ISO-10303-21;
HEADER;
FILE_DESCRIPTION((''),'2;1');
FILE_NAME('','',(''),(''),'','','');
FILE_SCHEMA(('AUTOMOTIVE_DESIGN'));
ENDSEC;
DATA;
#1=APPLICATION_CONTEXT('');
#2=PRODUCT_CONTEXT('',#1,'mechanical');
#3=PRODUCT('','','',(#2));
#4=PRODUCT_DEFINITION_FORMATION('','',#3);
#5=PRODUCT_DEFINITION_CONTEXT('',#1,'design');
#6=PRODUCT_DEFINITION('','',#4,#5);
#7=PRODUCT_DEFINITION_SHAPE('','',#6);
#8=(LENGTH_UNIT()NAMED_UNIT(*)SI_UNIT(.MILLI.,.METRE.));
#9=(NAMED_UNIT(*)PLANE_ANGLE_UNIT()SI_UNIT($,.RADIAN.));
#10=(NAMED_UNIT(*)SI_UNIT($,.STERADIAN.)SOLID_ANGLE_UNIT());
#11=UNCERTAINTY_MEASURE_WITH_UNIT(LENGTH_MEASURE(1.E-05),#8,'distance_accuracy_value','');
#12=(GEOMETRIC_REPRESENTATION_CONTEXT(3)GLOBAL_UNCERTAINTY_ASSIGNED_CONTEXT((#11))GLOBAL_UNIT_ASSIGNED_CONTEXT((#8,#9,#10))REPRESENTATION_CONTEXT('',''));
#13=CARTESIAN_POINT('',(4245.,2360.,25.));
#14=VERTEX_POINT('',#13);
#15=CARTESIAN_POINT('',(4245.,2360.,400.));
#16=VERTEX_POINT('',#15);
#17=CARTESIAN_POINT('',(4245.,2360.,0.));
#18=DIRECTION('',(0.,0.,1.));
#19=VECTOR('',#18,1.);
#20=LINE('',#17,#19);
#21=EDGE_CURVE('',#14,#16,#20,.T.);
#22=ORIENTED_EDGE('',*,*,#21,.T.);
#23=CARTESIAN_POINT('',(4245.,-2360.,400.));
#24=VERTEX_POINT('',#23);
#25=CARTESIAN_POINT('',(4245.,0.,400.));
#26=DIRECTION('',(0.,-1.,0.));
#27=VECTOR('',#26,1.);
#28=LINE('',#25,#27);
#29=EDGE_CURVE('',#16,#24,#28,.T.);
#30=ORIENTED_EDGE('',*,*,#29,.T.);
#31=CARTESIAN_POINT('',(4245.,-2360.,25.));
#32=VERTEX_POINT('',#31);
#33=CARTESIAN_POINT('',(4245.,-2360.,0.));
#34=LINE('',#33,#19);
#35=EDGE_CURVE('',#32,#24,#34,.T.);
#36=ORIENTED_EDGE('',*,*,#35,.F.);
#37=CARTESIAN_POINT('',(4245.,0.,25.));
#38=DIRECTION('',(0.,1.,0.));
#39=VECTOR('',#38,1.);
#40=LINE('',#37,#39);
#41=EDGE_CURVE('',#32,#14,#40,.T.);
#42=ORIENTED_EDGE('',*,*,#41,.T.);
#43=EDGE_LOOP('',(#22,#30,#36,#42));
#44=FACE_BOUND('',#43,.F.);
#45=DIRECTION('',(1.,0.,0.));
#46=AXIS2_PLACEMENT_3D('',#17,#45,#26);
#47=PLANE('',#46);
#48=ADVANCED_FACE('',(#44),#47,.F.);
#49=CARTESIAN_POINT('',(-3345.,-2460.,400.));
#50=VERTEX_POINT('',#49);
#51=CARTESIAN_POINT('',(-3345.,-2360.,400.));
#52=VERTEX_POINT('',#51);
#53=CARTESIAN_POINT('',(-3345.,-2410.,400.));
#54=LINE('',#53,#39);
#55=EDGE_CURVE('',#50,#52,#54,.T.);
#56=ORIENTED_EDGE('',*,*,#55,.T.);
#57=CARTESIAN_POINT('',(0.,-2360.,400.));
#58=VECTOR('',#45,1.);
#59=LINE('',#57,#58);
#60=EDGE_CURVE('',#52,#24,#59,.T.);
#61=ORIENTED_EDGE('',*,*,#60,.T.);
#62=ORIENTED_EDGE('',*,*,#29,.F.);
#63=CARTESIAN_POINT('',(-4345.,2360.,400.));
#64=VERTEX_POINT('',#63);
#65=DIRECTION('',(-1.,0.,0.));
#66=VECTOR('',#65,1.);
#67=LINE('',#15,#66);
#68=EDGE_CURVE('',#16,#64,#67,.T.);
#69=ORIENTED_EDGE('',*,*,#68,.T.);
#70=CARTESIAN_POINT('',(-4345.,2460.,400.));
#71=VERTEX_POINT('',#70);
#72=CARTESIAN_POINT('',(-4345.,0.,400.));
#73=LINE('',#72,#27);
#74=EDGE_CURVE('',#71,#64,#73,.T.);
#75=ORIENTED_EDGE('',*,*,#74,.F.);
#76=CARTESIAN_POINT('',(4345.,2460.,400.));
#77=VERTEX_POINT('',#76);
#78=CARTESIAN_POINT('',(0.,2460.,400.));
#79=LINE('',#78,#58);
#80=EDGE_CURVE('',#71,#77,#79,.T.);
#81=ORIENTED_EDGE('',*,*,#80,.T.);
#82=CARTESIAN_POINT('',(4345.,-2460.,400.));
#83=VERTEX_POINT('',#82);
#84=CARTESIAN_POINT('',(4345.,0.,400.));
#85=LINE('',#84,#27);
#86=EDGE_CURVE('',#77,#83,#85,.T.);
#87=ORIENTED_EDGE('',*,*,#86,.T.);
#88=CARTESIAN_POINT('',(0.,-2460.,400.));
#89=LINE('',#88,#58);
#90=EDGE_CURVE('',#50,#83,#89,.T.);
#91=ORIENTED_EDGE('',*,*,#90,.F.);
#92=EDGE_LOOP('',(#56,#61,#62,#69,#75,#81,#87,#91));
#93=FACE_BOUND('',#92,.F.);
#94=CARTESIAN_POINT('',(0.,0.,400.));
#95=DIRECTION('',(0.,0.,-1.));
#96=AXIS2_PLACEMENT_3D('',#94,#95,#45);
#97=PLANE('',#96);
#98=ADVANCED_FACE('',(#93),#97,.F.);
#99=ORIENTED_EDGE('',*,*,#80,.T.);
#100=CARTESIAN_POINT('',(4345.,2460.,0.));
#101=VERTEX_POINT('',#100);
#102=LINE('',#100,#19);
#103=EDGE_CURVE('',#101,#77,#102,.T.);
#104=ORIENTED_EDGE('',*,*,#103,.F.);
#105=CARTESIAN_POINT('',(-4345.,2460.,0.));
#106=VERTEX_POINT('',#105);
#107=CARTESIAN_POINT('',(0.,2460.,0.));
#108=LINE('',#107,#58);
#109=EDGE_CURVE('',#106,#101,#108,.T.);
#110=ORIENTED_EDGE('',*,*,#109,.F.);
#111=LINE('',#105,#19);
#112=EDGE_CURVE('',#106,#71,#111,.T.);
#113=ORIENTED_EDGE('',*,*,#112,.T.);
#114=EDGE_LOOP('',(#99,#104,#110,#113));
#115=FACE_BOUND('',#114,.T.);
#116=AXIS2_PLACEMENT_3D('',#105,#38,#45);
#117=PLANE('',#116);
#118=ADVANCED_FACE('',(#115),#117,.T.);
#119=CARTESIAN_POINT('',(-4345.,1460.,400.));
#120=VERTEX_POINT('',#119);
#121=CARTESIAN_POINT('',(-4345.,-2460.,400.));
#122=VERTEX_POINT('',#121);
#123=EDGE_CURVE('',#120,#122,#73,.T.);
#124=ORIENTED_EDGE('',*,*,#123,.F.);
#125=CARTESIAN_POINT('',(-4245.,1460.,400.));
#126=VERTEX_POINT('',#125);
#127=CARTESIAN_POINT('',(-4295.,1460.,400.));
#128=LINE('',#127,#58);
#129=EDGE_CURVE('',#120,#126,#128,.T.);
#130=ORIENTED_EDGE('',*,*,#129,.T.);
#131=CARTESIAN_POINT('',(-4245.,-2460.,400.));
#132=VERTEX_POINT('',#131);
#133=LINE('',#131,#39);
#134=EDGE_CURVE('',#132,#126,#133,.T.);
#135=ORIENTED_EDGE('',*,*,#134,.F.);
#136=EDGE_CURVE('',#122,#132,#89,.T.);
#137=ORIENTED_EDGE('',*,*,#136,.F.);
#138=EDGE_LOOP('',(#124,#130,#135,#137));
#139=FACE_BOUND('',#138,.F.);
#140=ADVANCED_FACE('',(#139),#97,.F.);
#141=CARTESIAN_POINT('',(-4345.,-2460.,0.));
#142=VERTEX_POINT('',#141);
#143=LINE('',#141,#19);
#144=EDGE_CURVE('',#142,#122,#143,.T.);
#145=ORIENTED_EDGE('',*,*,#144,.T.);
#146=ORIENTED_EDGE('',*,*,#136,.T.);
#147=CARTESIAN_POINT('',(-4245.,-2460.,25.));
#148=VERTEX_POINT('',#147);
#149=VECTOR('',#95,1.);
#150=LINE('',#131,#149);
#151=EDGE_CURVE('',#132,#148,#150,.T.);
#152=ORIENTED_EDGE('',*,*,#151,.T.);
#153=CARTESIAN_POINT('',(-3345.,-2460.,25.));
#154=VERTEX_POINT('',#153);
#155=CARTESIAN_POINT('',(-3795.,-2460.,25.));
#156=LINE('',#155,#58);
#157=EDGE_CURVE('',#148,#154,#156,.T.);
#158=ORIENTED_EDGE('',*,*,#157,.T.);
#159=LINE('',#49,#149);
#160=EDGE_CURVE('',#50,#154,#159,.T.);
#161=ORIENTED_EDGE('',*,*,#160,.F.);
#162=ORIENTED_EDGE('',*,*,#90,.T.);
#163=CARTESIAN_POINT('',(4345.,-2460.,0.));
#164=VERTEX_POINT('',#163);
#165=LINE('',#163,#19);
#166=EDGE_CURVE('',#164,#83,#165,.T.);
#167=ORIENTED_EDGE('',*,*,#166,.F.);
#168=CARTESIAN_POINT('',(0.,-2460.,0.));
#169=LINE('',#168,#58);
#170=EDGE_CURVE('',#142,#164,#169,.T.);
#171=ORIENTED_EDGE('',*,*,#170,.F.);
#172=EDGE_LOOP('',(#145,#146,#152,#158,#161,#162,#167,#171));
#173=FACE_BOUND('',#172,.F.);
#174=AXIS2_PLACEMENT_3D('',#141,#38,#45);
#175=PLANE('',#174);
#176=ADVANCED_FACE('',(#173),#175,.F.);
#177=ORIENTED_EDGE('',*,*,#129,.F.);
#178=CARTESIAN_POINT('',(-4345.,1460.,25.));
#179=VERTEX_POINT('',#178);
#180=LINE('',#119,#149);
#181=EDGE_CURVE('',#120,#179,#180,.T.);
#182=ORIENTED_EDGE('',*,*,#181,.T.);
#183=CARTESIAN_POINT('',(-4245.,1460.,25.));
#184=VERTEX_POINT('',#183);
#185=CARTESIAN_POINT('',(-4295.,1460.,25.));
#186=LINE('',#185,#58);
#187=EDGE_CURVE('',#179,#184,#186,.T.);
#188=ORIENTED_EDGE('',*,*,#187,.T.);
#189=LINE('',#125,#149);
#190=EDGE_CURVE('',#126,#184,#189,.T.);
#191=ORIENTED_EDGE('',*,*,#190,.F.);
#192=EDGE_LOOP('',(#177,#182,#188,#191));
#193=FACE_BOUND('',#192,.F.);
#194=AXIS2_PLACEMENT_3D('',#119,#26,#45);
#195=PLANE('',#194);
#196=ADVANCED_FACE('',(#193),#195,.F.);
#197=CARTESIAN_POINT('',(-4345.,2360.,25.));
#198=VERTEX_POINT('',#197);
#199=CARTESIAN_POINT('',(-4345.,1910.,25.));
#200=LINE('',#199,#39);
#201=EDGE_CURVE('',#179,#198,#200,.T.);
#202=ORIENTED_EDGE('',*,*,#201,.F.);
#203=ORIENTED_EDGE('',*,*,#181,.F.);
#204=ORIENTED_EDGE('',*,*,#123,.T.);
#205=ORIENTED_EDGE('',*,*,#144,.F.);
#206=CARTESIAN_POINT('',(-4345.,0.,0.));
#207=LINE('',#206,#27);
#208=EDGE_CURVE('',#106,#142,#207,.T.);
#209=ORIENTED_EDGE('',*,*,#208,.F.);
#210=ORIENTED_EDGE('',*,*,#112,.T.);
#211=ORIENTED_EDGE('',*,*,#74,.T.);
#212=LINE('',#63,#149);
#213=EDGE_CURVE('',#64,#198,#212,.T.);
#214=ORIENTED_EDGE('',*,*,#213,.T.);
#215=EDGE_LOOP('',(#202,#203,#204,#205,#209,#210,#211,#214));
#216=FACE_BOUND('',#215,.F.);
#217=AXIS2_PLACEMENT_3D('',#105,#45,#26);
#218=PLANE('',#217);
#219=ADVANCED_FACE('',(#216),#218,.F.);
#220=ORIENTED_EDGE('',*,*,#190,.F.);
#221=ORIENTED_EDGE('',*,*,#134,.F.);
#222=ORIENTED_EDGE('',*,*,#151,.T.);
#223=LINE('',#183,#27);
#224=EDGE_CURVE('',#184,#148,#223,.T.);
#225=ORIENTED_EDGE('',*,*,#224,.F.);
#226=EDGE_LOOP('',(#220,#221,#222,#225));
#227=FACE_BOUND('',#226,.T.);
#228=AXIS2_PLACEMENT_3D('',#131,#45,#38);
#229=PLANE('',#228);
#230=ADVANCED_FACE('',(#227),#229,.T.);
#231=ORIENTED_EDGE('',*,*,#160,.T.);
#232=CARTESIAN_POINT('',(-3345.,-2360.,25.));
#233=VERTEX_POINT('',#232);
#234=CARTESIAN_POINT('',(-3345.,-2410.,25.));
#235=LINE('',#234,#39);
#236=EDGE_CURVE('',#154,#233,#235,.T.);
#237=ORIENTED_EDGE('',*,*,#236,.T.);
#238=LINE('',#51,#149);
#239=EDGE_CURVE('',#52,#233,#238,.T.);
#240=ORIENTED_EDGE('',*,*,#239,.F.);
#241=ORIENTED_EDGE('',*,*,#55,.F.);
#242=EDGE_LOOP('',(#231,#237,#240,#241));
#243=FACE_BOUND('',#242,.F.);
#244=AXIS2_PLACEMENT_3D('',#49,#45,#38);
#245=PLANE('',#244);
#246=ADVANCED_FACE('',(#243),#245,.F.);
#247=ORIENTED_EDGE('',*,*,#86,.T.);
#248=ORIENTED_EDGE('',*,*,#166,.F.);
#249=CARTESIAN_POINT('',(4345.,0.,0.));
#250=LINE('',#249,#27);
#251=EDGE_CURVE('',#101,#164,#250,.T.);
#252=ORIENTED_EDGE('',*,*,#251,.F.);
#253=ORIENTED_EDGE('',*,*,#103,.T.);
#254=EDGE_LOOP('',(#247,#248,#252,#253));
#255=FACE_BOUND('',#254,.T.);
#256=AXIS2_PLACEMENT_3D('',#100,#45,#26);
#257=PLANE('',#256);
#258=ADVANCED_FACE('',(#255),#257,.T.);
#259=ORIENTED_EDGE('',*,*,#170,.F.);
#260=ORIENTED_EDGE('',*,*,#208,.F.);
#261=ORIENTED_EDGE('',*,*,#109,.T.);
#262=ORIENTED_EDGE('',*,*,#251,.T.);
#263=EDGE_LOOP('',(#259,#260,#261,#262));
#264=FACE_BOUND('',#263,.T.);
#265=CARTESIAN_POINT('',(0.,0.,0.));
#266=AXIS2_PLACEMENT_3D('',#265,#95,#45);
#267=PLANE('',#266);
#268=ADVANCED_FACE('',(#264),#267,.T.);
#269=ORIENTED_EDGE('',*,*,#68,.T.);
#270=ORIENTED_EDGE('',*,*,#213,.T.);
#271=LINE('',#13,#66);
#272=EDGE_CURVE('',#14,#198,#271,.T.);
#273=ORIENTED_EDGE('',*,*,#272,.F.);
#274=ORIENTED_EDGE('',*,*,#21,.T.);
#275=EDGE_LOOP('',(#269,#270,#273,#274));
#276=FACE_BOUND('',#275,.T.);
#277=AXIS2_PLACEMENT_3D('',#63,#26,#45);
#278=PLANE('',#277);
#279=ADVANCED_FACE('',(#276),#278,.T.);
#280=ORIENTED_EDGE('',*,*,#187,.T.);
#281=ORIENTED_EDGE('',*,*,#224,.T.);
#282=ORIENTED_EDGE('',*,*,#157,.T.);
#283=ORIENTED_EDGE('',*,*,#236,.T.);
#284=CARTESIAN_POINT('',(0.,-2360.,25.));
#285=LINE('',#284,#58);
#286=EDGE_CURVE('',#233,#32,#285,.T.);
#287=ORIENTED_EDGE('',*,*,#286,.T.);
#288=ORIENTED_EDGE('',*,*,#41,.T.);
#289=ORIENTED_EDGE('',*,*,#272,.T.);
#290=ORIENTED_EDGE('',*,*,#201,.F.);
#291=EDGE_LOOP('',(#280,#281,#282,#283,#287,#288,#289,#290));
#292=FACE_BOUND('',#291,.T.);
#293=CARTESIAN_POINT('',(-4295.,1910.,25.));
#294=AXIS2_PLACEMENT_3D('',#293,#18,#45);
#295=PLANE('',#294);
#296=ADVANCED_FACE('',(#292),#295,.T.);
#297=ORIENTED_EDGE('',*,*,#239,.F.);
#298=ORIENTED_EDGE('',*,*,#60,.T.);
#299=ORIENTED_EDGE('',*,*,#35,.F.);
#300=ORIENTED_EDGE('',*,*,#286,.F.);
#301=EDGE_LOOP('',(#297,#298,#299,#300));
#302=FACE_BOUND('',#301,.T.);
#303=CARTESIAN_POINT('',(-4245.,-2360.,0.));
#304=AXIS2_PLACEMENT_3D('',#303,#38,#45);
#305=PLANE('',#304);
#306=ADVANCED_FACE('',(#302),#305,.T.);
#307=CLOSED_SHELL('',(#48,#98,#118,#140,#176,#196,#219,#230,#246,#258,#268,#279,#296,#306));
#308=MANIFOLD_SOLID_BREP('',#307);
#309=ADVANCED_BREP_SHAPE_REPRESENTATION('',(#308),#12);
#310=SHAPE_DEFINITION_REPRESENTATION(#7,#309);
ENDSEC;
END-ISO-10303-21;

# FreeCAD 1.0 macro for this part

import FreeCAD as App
import Part
import Sketcher
Q = App.Units.Quantity


def add_polygon(sketch, points):
    """Adds a closed chain of lines whose ends are joined by coincident constraints."""
    first, n = sketch.GeometryCount, len(points)
    for a, b in zip(points, points[1:] + points[:1]):
        sketch.addGeometry(Part.LineSegment(App.Vector(*a, 0), App.Vector(*b, 0)), False)
    for i in range(n):
        sketch.addConstraint(Sketcher.Constraint("Coincident", first + i, 2, first + (i + 1) % n, 1))

doc = App.newDocument("Part")
params = doc.addObject("Spreadsheet::Sheet", "Params")
for row, (alias, value) in enumerate([
    ("sketch1_width", "8490 mm"),
    ("sketch1_height", "4720 mm"),
    ("pad1_length", "25 mm"),
    ("sketch2_width", "8690 mm"),
    ("sketch2_width2", "8490 mm"),
    ("sketch2_height", "4920 mm"),
    ("sketch2_height2", "4720 mm"),
    ("pad2_length", "400 mm"),
    ("sketch3_width", "100 mm"),
    ("sketch3_width2", "900 mm"),
    ("pocket1_length", "375 mm"),
], start=1):
    params.set(f"A{row}", alias)
    params.set(f"B{row}", "=" + value)
    params.setAlias(f"B{row}", alias)

body = doc.addObject("PartDesign::Body", "Body")

# Sketch on XY plane
sketch1 = doc.addObject("Sketcher::SketchObject", "Sketch")
body.addObject(sketch1)
sketch1.AttachmentSupport = (doc.XY_Plane, [""])
sketch1.MapMode = "FlatFace"
add_polygon(sketch1, [(-4245, 2360), (-4245, -2360), (4245, -2360), (4245, 2360)])  # lines 0-3
sketch1.addConstraint([
    Sketcher.Constraint("Vertical", 0),
    Sketcher.Constraint("Horizontal", 1),
    Sketcher.Constraint("Vertical", 2),
    Sketcher.Constraint("Horizontal", 3),
    Sketcher.Constraint("Symmetric", 0, 2, 2, 2, -1, 1),
    Sketcher.Constraint("DistanceX", 1, 1, 1, 2, Q("8490 mm")),
    Sketcher.Constraint("DistanceY", 0, 2, 0, 1, Q("4720 mm")),
])
sketch1.setExpression("Constraints[9]", "Params.sketch1_width")
sketch1.setExpression("Constraints[10]", "Params.sketch1_height")
pad1 = doc.addObject("PartDesign::Pad", "Pad")
body.addObject(pad1)
pad1.Profile = sketch1
pad1.setExpression("Length", "Params.pad1_length")

# Sketch on XY plane
sketch2 = doc.addObject("Sketcher::SketchObject", "Sketch001")
body.addObject(sketch2)
sketch2.AttachmentSupport = (doc.XY_Plane, [""])
sketch2.MapMode = "FlatFace"
add_polygon(sketch2, [(-4345, -2460), (-4345, 2460), (4345, 2460), (4345, -2460)])  # lines 0-3
add_polygon(sketch2, [(4245, 2360), (-4245, 2360), (-4245, -2360), (4245, -2360)])  # lines 4-7
sketch2.addConstraint([
    Sketcher.Constraint("Vertical", 0),
    Sketcher.Constraint("Horizontal", 1),
    Sketcher.Constraint("Vertical", 2),
    Sketcher.Constraint("Horizontal", 3),
    Sketcher.Constraint("Horizontal", 4),
    Sketcher.Constraint("Vertical", 5),
    Sketcher.Constraint("Horizontal", 6),
    Sketcher.Constraint("Vertical", 7),
    Sketcher.Constraint("Symmetric", 0, 2, 2, 2, -1, 1),
    Sketcher.Constraint("Symmetric", 4, 2, 6, 2, -1, 1),
    Sketcher.Constraint("DistanceX", 1, 1, 1, 2, Q("8690 mm")),
    Sketcher.Constraint("DistanceX", 4, 2, 4, 1, Q("8490 mm")),
    Sketcher.Constraint("DistanceY", 0, 1, 0, 2, Q("4920 mm")),
    Sketcher.Constraint("DistanceY", 5, 2, 5, 1, Q("4720 mm")),
])
sketch2.setExpression("Constraints[18]", "Params.sketch2_width")
sketch2.setExpression("Constraints[19]", "Params.sketch2_width2")
sketch2.setExpression("Constraints[20]", "Params.sketch2_height")
sketch2.setExpression("Constraints[21]", "Params.sketch2_height2")
pad2 = doc.addObject("PartDesign::Pad", "Pad001")
body.addObject(pad2)
pad2.Profile = sketch2
pad2.setExpression("Length", "Params.pad2_length")

# Sketch on XY plane
sketch3 = doc.addObject("Sketcher::SketchObject", "Sketch002")
body.addObject(sketch3)
sketch3.AttachmentSupport = (doc.XY_Plane, [""])
sketch3.MapMode = "FlatFace"
sketch3.AttachmentOffset = App.Placement(App.Vector(0, 0, 400), App.Rotation())
add_polygon(sketch3, [(-4345, 2360), (-4345, 1460), (-4245, 1460), (-4245, 2360)])  # lines 0-3
add_polygon(sketch3, [(-4245, -2360), (-4245, -2460), (-3345, -2460), (-3345, -2360)])  # lines 4-7
sketch3.addConstraint([
    Sketcher.Constraint("Vertical", 0),
    Sketcher.Constraint("Horizontal", 1),
    Sketcher.Constraint("Vertical", 2),
    Sketcher.Constraint("Horizontal", 3),
    Sketcher.Constraint("Vertical", 4),
    Sketcher.Constraint("Horizontal", 5),
    Sketcher.Constraint("Vertical", 6),
    Sketcher.Constraint("Horizontal", 7),
    Sketcher.Constraint("Symmetric", 2, 2, 7, 2, -1),
    Sketcher.Constraint("Equal", 7, 0),
    Sketcher.Constraint("Equal", 3, 4),
    Sketcher.Constraint("DistanceX", 1, 1, 1, 2, Q("100 mm")),
    Sketcher.Constraint("DistanceX", 5, 1, 5, 2, Q("900 mm")),
    Sketcher.Constraint("DistanceX", 0, 2, -1, 1, Q("4345 mm")),
    Sketcher.Constraint("DistanceY", -1, 1, 0, 2, Q("1460 mm")),
])
sketch3.setExpression("Constraints[19]", "Params.sketch3_width")
sketch3.setExpression("Constraints[20]", "Params.sketch3_width2")
pocket1 = doc.addObject("PartDesign::Pocket", "Pocket")
body.addObject(pocket1)
pocket1.Profile = sketch3
pocket1.setExpression("Length", "Params.pocket1_length")

doc.recompute()
